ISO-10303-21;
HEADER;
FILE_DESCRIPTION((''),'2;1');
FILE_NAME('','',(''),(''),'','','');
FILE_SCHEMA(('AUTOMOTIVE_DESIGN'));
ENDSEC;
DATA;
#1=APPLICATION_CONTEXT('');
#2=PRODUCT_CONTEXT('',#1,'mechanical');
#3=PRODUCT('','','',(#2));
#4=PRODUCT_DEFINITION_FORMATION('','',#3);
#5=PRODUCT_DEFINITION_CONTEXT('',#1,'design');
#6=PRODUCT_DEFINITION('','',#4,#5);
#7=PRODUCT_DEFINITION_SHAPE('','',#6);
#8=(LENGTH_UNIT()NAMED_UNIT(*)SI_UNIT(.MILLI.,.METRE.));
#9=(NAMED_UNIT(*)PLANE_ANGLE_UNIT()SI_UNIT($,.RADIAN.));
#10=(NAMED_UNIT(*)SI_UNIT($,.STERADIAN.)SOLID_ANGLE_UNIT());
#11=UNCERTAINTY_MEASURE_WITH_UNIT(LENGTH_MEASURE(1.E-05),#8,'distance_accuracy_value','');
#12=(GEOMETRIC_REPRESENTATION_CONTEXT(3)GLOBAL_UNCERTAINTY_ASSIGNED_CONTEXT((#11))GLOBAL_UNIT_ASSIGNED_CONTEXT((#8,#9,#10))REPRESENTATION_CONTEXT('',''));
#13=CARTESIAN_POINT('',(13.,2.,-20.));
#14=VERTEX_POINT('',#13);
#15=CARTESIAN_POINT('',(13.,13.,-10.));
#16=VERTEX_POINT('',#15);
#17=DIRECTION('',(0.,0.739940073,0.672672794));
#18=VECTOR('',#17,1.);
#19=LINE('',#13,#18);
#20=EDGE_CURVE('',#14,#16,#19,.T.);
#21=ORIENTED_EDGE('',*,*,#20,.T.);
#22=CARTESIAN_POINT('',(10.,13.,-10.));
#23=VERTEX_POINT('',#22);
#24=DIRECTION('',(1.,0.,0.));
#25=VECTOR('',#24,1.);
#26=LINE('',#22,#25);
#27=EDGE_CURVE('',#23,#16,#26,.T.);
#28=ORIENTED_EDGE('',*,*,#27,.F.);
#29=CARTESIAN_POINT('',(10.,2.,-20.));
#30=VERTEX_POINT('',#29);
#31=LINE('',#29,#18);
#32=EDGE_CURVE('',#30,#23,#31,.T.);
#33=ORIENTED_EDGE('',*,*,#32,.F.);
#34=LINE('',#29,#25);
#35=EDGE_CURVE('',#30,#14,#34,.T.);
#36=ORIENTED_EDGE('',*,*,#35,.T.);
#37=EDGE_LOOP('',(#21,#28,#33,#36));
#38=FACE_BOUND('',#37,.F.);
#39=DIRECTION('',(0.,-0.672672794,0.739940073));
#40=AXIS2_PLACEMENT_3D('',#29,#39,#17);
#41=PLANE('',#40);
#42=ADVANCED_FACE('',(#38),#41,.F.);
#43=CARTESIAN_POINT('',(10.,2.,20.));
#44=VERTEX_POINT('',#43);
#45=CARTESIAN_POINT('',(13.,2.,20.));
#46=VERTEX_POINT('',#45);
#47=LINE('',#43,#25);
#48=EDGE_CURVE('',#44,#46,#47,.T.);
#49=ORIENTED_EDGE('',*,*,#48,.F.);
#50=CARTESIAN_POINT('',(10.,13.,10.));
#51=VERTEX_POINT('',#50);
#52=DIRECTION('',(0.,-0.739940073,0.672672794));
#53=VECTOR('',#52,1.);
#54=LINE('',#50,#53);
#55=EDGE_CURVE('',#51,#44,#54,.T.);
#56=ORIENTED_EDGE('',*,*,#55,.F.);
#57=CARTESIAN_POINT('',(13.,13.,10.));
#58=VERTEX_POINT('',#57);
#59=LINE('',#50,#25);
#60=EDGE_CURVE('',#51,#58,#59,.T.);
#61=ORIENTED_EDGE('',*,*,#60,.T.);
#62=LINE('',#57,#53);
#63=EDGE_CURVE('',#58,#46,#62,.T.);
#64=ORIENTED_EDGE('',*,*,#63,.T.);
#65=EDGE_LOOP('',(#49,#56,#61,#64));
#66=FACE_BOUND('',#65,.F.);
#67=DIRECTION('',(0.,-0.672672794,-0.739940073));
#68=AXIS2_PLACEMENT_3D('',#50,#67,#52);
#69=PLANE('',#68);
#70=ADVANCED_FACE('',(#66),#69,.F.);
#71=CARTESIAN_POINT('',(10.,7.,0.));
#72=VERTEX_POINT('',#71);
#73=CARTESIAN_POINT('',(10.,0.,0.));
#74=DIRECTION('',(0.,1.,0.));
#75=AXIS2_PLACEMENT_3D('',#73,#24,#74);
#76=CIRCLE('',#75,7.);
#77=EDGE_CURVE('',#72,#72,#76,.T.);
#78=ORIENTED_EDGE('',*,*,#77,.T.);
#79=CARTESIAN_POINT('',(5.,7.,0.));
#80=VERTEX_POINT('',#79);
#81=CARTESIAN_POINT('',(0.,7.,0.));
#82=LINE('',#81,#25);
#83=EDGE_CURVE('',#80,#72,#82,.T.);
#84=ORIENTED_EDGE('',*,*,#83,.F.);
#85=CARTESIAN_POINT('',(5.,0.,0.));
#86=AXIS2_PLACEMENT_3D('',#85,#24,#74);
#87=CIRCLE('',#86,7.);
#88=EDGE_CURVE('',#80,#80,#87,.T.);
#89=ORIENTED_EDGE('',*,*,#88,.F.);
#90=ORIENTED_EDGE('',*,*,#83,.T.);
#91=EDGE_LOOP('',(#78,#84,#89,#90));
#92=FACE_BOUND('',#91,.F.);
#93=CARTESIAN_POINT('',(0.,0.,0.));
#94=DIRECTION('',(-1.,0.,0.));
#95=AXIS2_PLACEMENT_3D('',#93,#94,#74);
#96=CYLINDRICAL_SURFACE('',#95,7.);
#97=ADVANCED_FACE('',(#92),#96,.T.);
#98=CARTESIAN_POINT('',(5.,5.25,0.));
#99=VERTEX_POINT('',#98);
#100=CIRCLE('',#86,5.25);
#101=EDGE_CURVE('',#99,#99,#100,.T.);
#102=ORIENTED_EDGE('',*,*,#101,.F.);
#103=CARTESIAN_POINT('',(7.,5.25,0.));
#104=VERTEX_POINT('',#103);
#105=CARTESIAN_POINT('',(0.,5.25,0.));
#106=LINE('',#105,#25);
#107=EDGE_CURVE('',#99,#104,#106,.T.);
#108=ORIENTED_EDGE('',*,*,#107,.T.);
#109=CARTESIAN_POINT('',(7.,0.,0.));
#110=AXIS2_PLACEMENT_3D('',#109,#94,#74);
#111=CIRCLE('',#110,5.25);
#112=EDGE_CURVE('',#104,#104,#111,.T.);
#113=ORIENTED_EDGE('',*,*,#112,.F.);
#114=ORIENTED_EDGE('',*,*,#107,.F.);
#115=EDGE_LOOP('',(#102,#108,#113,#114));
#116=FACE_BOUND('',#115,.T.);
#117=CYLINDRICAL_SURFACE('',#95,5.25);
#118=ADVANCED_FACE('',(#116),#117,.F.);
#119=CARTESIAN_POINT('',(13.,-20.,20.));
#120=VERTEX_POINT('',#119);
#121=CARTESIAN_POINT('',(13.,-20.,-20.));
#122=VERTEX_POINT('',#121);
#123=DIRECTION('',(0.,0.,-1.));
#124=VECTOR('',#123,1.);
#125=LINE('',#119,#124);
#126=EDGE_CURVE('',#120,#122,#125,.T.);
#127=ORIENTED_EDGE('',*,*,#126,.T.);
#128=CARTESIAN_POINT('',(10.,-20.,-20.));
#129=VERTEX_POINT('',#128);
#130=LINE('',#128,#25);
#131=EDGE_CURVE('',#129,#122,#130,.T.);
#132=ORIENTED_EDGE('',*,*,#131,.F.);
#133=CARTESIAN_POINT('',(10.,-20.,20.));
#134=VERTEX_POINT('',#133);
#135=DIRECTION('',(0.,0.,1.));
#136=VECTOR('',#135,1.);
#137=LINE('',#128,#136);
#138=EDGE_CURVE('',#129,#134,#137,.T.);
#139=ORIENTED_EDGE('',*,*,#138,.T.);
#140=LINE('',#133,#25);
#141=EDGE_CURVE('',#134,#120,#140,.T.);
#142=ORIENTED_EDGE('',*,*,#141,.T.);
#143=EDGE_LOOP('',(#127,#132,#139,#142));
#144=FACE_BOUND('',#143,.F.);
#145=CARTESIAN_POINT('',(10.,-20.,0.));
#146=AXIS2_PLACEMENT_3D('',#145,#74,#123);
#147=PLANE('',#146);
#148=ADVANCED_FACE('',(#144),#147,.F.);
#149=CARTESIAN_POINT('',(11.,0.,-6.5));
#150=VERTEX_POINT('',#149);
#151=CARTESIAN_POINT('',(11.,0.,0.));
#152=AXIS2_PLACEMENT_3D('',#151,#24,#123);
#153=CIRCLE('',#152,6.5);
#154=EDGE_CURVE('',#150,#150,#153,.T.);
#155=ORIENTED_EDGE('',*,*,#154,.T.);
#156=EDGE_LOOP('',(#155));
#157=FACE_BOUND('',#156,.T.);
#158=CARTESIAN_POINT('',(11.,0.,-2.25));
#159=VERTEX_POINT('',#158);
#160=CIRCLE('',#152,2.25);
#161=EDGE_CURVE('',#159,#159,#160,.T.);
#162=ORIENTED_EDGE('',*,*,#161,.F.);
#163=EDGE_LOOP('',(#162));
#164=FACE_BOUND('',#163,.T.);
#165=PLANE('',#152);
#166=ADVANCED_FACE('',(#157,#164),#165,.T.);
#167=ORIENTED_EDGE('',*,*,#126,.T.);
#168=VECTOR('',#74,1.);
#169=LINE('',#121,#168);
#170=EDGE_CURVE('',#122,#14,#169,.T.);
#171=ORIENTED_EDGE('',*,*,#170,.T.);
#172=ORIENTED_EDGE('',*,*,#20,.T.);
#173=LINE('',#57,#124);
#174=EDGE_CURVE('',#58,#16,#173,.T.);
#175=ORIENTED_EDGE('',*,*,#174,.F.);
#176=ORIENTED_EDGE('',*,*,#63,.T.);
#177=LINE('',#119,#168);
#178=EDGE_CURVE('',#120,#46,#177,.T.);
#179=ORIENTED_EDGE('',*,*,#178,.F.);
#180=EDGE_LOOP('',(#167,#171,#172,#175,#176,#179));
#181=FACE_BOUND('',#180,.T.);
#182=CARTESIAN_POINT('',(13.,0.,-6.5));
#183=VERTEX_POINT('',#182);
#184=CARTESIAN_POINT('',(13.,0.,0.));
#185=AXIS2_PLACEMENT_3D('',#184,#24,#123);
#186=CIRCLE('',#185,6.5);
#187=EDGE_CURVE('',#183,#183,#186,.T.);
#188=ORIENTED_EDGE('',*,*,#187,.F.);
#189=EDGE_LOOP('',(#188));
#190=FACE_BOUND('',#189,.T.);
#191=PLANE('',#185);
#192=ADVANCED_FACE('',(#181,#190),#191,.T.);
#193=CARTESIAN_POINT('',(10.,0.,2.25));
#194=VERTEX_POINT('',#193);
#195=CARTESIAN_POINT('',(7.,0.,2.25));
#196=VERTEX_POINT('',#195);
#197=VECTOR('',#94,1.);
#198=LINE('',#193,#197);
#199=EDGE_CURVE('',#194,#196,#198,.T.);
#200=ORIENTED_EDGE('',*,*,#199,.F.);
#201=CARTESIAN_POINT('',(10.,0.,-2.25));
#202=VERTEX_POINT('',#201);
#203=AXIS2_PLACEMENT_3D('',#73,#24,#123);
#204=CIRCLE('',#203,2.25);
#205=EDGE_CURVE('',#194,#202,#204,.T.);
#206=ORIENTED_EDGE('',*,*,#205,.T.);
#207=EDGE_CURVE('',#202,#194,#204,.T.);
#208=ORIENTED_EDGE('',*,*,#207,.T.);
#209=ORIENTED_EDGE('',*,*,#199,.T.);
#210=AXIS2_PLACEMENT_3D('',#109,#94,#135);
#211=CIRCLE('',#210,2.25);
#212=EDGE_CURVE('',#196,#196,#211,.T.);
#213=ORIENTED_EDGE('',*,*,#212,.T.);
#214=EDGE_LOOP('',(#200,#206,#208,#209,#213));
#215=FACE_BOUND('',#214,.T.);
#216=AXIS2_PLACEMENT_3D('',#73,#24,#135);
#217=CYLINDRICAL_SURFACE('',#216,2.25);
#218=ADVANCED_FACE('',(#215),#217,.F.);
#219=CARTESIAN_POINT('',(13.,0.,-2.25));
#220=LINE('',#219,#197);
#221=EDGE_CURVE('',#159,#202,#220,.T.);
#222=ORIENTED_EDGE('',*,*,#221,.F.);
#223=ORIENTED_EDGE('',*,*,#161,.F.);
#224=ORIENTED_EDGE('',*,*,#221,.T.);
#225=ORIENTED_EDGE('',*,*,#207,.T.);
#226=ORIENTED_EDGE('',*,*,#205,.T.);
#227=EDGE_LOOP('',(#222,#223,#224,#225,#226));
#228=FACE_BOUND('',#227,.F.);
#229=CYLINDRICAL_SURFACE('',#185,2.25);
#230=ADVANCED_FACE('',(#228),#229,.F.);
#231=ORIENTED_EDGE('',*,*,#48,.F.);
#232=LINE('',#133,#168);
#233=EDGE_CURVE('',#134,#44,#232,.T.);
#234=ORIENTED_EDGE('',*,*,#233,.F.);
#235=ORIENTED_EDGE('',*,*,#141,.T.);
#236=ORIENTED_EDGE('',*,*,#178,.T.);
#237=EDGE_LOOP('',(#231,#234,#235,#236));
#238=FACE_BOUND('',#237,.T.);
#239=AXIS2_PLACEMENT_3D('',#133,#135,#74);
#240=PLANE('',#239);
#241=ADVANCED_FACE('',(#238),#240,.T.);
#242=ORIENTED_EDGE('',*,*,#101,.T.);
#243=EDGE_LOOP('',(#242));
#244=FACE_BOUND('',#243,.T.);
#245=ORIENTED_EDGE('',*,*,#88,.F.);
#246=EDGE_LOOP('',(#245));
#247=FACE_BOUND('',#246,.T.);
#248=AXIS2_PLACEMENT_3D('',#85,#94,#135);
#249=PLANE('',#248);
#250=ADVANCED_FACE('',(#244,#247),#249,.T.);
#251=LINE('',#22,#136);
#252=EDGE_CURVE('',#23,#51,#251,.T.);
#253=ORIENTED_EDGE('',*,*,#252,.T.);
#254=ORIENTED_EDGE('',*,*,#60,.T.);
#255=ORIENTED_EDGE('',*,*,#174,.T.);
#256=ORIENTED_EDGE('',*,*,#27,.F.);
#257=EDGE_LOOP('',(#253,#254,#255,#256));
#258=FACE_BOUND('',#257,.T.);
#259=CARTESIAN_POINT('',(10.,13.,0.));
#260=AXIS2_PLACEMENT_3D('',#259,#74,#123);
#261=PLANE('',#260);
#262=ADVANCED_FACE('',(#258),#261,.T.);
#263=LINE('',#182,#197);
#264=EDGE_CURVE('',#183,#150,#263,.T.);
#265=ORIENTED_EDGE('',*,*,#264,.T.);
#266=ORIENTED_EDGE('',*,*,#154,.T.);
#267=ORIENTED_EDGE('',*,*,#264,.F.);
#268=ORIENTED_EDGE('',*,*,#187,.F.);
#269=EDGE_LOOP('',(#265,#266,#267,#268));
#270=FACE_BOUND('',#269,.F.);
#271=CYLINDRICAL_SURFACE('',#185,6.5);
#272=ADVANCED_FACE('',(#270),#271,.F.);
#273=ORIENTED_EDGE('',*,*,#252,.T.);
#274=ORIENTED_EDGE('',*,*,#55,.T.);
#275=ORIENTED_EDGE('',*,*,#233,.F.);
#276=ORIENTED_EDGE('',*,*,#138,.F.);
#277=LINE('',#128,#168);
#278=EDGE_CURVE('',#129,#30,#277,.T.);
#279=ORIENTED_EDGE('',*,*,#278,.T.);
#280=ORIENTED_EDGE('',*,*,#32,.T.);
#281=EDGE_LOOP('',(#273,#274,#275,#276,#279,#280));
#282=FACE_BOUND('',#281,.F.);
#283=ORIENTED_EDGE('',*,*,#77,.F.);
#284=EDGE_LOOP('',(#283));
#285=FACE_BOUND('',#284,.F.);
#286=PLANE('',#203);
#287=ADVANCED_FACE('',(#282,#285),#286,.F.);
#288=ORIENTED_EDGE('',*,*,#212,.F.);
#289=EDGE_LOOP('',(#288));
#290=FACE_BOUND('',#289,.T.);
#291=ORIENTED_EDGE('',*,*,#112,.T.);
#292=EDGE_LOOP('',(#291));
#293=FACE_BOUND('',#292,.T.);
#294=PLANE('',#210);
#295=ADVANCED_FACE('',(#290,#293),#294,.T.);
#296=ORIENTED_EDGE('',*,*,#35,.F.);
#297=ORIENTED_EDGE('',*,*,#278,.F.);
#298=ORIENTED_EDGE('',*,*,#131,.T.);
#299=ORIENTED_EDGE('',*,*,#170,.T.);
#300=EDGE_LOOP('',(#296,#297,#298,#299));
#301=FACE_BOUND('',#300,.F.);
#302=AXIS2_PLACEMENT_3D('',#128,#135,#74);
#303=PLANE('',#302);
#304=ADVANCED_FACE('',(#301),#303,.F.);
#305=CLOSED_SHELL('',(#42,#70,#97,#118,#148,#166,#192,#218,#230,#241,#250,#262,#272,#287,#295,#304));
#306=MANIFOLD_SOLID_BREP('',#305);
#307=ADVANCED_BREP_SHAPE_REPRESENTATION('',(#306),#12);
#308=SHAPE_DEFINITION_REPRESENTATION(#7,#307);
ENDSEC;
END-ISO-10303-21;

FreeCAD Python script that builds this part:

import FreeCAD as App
import Part
import Sketcher
from FreeCAD import Vector


def add_polygon(sketch, points):
    """Adds a closed chain of lines whose ends are joined by coincident constraints."""
    first, n = sketch.GeometryCount, len(points)
    for a, b in zip(points, points[1:] + points[:1]):
        sketch.addGeometry(Part.LineSegment(App.Vector(*a, 0), App.Vector(*b, 0)), False)
    for i in range(n):
        sketch.addConstraint(Sketcher.Constraint("Coincident", first + i, 2, first + (i + 1) % n, 1))

doc = App.newDocument("Part")
body = doc.addObject("PartDesign::Body", "Body")

sketch1 = doc.addObject("Sketcher::SketchObject", "Sketch")
body.addObject(sketch1)
sketch1.AttachmentSupport = (doc.YZ_Plane, [""])
sketch1.MapMode = "FlatFace"
sketch1.addGeometry([
    Part.Circle(Vector(0, 0, 0), Vector(0, 0, 1), 7),
    Part.Circle(Vector(0, 0, 0), Vector(0, 0, 1), 5),
], False)
sketch1.addConstraint([
    Sketcher.Constraint("Coincident", 0, 3, -1, 1),
    Sketcher.Constraint("Coincident", 1, 3, -1, 1),
    Sketcher.Constraint("Diameter", 0, 14.0),
    Sketcher.Constraint("Diameter", 1, 10.5),
])
pad1 = doc.addObject("PartDesign::Pad", "Pad")
body.addObject(pad1)
pad1.Profile = sketch1
pad1.Length = 10

sketch2 = doc.addObject("Sketcher::SketchObject", "Sketch001")
body.addObject(sketch2)
sketch2.AttachmentSupport = (doc.YZ_Plane, [""])
sketch2.MapMode = "FlatFace"
sketch2.AttachmentOffset = App.Placement(Vector(0, 0, 10), App.Rotation())
add_polygon(sketch2, [(13, -10), (13, 10), (2, 20), (-20, 20), (-20, -20), (2, -20)])
sketch2.addConstraint([
    Sketcher.Constraint("Vertical", 0),
    Sketcher.Constraint("Horizontal", 2),
    Sketcher.Constraint("Vertical", 3),
    Sketcher.Constraint("Horizontal", 4),
    Sketcher.Constraint("Symmetric", 1, 2, 4, 2, -1),
    Sketcher.Constraint("Equal", 1, 5),
    Sketcher.Constraint("DistanceX", 2, 2, 2, 1, 22.0),
    Sketcher.Constraint("DistanceY", 0, 1, 0, 2, 20.0),
    Sketcher.Constraint("DistanceX", -1, 1, 0, 2, 13.0),
    Sketcher.Constraint("DistanceY", -1, 1, 1, 2, 20.0),
    Sketcher.Constraint("DistanceX", 2, 2, -1, 1, 20.0),
])
pad2 = doc.addObject("PartDesign::Pad", "Pad001")
body.addObject(pad2)
pad2.Profile = sketch2
pad2.Length = 3

sketch3 = doc.addObject("Sketcher::SketchObject", "Sketch002")
body.addObject(sketch3)
sketch3.AttachmentSupport = (doc.YZ_Plane, [""])
sketch3.MapMode = "FlatFace"
sketch3.AttachmentOffset = App.Placement(Vector(0, 0, 13), App.Rotation())
sketch3.addGeometry(Part.Circle(Vector(0, 0, 0), Vector(0, 0, 1), 2.2), False)
sketch3.addConstraint([
    Sketcher.Constraint("Coincident", 0, 3, -1, 1),
    Sketcher.Constraint("Diameter", 0, 4.5),
])
pocket1 = doc.addObject("PartDesign::Pocket", "Pocket")
body.addObject(pocket1)
pocket1.Profile = sketch3
pocket1.Length = 59.75

sketch4 = doc.addObject("Sketcher::SketchObject", "Sketch003")
body.addObject(sketch4)
sketch4.AttachmentSupport = (doc.YZ_Plane, [""])
sketch4.MapMode = "FlatFace"
sketch4.addGeometry([
    Part.Circle(Vector(0, 0, 0), Vector(0, 0, 1), 7),
    Part.Circle(Vector(0, 0, 0), Vector(0, 0, 1), 5),
], False)
sketch4.addConstraint([
    Sketcher.Constraint("Coincident", 0, 3, -1, 1),
    Sketcher.Constraint("Coincident", 1, 3, -1, 1),
    Sketcher.Constraint("Diameter", 0, 14.0),
    Sketcher.Constraint("Diameter", 1, 10.5),
])
pocket2 = doc.addObject("PartDesign::Pocket", "Pocket001")
body.addObject(pocket2)
pocket2.Profile = sketch4
pocket2.Length = 5
pocket2.Reversed = True

sketch5 = doc.addObject("Sketcher::SketchObject", "Sketch004")
body.addObject(sketch5)
sketch5.AttachmentSupport = (doc.YZ_Plane, [""])
sketch5.MapMode = "FlatFace"
sketch5.AttachmentOffset = App.Placement(Vector(0, 0, 13), App.Rotation())
sketch5.addGeometry(Part.Circle(Vector(0, 0, 0), Vector(0, 0, 1), 6), False)
sketch5.addConstraint([
    Sketcher.Constraint("Coincident", 0, 3, -1, 1),
    Sketcher.Constraint("Diameter", 0, 13.0),
])
pocket3 = doc.addObject("PartDesign::Pocket", "Pocket002")
body.addObject(pocket3)
pocket3.Profile = sketch5
pocket3.Length = 2

sketch6 = doc.addObject("Sketcher::SketchObject", "Sketch005")
body.addObject(sketch6)
sketch6.AttachmentSupport = (doc.YZ_Plane, [""])
sketch6.MapMode = "FlatFace"
sketch6.AttachmentOffset = App.Placement(Vector(0, 0, 10), App.Rotation())
sketch6.addGeometry([
    Part.Circle(Vector(0, 0, 0), Vector(0, 0, 1), 5.2),
    Part.Circle(Vector(0, 0, 0), Vector(0, 0, 1), 2.2),
], False)
sketch6.addConstraint([
    Sketcher.Constraint("Coincident", 0, 3, -1, 1),
    Sketcher.Constraint("Coincident", 1, 3, -1, 1),
    Sketcher.Constraint("Diameter", 0, 10.5),
    Sketcher.Constraint("Diameter", 1, 4.5),
])
pad3 = doc.addObject("PartDesign::Pad", "Pad002")
body.addObject(pad3)
pad3.Profile = sketch6
pad3.Length = 3
pad3.Reversed = True

doc.recompute()
